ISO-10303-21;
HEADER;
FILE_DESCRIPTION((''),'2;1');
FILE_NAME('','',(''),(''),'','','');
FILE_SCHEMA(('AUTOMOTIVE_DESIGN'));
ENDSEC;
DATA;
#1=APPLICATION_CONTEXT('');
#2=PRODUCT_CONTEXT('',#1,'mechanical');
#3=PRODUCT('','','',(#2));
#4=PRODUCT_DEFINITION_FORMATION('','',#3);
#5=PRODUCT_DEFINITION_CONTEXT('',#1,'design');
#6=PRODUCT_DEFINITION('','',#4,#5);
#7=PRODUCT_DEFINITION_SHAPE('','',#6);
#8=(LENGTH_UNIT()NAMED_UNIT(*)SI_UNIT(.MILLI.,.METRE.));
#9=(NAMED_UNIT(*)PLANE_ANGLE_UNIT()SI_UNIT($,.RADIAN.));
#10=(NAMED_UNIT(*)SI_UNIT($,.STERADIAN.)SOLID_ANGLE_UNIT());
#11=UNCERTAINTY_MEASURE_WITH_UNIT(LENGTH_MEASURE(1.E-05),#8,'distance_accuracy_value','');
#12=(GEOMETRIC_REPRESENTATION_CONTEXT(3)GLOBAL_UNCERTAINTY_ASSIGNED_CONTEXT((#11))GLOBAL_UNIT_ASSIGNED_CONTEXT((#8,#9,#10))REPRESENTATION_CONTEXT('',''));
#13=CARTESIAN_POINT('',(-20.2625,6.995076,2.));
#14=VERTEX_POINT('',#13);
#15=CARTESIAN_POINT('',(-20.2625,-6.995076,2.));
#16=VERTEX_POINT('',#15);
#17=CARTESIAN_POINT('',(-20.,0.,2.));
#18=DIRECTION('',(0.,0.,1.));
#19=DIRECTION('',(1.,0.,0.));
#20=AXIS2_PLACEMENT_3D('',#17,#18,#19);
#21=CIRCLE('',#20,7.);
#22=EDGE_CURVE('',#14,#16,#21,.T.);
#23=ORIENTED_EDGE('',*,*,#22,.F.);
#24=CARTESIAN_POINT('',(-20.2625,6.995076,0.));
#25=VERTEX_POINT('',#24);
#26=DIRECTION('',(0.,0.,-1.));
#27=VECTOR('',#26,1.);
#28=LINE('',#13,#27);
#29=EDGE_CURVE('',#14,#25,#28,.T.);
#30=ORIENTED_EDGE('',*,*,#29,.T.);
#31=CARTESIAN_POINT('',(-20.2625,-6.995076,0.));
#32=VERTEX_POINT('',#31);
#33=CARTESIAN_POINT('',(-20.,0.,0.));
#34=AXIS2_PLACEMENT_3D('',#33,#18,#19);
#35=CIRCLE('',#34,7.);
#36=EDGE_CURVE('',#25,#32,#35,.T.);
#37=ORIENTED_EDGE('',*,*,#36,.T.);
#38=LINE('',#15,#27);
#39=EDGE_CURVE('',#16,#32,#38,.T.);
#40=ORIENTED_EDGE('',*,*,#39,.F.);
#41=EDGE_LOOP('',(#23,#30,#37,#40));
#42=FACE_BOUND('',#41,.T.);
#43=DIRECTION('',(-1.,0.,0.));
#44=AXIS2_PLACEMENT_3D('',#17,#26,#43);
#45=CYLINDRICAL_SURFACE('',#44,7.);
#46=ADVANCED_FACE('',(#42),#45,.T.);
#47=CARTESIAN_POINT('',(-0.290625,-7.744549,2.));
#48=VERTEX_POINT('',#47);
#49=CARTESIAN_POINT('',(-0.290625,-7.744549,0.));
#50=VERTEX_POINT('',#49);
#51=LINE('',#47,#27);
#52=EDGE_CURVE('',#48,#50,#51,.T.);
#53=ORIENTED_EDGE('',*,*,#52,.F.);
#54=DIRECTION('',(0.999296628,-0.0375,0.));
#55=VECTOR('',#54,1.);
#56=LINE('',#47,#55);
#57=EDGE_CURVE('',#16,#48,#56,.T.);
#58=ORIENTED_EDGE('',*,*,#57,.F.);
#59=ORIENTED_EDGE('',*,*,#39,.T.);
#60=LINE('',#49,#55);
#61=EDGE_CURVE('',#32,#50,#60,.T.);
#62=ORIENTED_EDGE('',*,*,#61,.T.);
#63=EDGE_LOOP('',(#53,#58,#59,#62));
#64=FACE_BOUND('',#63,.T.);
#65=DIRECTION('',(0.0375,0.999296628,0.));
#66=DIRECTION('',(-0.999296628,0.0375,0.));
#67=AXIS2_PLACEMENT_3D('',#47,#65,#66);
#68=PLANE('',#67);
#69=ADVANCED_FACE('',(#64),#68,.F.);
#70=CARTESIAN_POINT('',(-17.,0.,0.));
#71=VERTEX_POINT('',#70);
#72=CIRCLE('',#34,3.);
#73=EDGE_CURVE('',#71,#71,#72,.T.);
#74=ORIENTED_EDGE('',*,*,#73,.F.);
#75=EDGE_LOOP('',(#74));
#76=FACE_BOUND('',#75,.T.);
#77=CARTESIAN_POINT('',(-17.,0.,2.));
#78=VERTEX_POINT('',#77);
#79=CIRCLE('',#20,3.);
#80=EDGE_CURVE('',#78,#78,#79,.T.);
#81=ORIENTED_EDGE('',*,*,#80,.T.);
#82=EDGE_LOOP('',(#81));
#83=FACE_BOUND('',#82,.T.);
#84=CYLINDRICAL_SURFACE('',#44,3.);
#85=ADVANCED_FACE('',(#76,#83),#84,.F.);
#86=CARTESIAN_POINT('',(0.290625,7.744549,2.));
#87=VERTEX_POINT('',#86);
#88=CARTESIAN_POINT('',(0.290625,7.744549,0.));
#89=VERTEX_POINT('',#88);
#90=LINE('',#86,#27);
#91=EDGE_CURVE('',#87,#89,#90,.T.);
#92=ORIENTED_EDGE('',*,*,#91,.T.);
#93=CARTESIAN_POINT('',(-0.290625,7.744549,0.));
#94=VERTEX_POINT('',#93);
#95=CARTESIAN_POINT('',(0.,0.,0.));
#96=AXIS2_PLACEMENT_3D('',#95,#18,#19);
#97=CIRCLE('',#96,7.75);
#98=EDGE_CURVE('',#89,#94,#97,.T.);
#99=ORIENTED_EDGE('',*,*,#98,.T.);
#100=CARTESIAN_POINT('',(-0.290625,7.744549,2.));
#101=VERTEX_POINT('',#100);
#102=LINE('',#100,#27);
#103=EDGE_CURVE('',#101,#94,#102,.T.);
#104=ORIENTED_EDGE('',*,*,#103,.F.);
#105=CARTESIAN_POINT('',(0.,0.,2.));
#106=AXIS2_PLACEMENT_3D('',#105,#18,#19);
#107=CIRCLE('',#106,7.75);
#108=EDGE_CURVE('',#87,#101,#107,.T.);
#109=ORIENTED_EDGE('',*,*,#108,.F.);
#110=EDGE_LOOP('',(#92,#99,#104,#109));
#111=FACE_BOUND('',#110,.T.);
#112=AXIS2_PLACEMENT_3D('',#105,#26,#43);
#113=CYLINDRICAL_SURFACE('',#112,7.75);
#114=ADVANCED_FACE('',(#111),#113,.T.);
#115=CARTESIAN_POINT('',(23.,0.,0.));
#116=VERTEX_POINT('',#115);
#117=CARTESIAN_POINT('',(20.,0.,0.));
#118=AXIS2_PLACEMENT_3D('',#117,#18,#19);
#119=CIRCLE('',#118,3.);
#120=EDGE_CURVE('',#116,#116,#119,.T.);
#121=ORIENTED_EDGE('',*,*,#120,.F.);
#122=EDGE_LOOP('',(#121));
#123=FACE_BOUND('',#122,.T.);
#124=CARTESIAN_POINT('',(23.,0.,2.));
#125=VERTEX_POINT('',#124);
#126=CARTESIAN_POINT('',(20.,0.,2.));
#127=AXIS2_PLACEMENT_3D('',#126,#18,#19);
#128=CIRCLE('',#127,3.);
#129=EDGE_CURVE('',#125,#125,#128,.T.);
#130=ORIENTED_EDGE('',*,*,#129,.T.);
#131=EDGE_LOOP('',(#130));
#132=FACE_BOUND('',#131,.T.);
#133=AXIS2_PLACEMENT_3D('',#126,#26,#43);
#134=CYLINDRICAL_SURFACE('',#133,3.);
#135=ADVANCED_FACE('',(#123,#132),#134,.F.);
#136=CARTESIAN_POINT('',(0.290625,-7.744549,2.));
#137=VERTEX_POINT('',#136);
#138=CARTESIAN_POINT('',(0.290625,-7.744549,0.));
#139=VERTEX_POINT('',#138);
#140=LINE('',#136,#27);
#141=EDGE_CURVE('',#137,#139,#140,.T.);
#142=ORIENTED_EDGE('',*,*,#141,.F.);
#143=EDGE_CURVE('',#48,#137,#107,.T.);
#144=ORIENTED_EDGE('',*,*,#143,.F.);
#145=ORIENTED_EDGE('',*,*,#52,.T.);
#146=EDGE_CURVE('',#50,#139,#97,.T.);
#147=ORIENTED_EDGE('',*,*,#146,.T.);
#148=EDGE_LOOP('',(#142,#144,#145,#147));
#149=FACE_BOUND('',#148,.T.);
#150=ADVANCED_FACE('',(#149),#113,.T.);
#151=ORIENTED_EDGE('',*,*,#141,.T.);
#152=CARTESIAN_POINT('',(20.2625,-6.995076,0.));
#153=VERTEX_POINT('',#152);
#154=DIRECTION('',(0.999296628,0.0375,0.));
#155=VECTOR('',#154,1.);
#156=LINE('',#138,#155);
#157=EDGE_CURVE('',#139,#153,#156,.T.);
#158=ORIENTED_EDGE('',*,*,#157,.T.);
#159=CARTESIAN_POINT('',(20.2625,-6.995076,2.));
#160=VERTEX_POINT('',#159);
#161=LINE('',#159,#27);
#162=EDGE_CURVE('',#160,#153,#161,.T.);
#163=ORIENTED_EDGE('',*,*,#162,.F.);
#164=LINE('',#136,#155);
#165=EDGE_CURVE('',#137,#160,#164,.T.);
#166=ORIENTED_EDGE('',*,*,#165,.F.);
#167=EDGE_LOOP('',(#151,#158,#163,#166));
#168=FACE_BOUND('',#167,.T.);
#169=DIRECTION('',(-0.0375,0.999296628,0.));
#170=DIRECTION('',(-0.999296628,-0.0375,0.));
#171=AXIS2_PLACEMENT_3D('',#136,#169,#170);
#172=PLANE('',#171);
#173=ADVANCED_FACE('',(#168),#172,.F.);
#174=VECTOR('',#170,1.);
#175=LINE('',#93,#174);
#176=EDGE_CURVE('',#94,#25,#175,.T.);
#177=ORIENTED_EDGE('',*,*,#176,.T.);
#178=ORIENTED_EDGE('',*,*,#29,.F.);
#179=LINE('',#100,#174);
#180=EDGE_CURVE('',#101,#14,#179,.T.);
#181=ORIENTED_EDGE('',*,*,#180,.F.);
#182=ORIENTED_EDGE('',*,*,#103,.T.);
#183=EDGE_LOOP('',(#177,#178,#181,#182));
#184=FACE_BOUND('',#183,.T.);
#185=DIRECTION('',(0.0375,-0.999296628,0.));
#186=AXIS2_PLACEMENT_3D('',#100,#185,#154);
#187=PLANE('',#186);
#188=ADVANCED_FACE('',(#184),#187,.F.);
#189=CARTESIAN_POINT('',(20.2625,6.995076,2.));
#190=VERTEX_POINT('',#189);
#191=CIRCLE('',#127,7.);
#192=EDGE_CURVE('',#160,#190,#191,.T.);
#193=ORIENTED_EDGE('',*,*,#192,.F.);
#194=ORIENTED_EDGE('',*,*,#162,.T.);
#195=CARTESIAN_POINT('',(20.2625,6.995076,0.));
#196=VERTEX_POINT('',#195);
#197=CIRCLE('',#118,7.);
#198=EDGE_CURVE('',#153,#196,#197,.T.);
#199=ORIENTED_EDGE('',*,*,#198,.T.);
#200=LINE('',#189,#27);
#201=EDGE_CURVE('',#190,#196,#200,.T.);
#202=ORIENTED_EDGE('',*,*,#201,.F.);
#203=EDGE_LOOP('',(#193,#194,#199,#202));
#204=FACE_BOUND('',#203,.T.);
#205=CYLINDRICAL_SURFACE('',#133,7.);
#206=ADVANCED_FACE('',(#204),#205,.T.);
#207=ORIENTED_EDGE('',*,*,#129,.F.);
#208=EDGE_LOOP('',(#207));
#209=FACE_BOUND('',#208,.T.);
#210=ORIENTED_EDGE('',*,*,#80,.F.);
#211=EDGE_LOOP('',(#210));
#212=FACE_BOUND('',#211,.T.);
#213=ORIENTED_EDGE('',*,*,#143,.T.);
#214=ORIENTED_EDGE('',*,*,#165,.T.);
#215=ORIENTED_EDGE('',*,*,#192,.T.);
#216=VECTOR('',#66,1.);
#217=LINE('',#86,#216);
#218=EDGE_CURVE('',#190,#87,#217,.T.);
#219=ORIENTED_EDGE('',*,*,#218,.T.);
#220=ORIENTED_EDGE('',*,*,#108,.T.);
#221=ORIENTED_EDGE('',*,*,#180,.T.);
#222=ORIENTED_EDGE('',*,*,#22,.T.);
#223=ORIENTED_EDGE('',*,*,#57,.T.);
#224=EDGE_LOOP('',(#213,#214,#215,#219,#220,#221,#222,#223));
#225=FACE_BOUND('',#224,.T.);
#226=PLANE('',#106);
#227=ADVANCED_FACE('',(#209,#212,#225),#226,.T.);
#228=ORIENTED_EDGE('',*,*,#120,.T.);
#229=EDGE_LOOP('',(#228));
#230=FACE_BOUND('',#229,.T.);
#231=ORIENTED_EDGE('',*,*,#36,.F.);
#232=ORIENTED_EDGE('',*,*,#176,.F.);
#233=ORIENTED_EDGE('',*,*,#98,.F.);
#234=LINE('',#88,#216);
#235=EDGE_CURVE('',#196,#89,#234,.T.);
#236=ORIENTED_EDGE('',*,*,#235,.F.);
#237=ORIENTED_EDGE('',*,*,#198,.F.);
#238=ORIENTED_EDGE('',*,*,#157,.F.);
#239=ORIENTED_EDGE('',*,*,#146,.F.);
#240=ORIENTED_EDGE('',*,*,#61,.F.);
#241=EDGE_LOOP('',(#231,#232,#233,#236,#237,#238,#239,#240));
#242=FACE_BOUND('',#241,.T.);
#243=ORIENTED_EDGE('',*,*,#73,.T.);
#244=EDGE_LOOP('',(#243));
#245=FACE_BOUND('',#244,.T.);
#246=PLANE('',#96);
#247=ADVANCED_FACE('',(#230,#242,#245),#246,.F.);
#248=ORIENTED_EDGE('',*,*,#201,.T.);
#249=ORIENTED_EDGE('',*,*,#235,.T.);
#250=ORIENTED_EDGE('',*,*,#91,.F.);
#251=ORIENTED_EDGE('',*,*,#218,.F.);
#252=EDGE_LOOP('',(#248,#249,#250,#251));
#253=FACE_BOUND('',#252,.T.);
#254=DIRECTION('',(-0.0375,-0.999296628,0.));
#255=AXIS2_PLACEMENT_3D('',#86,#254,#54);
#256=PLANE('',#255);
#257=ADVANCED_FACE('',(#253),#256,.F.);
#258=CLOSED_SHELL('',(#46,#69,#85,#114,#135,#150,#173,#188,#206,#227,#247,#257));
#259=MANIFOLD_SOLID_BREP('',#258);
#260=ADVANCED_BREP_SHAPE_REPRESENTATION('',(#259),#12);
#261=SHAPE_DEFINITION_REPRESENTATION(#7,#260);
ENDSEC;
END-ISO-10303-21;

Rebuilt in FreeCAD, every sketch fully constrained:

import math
import FreeCAD as App
import Part
import Sketcher
from FreeCAD import Vector

doc = App.newDocument("Part")
body = doc.addObject("PartDesign::Body", "Body")

# Sketch on XY plane
sketch1 = body.newObject("Sketcher::SketchObject", "Sketch")
sketch1.AttachmentSupport = (doc.getObject("XY_Plane"), [""])
sketch1.MapMode = "FlatFace"
sketch1.addGeometry(Part.LineSegment(Vector(-0.3, 7.7, 0), Vector(-20.3, 7, 0)), False)
sketch1.addGeometry(Part.ArcOfCircle(Part.Circle(Vector(-20, 0, 0), Vector(0, 0, 1), 7), math.radians(92), math.radians(268)), False)
sketch1.addGeometry(Part.LineSegment(Vector(-20.3, -7, 0), Vector(-0.3, -7.7, 0)), False)
sketch1.addGeometry(Part.ArcOfCircle(Part.Circle(Vector(0, 0, 0), Vector(0, 0, 1), 7.7), math.radians(-92.15), math.radians(-87.85)), False)
sketch1.addGeometry(Part.LineSegment(Vector(0.3, -7.7, 0), Vector(20.3, -7, 0)), False)
sketch1.addGeometry(Part.ArcOfCircle(Part.Circle(Vector(20, 0, 0), Vector(0, 0, 1), 7), math.radians(-88), math.radians(88)), False)
sketch1.addGeometry(Part.LineSegment(Vector(20.3, 7, 0), Vector(0.3, 7.7, 0)), False)
sketch1.addGeometry(Part.ArcOfCircle(Part.Circle(Vector(0, 0, 0), Vector(0, 0, 1), 7.7), math.radians(87.85), math.radians(92.15)), False)
sketch1.addGeometry(Part.Circle(Vector(-20, 0, 0), Vector(0, 0, 1), 3), False)
sketch1.addGeometry(Part.Circle(Vector(20, 0, 0), Vector(0, 0, 1), 3), False)
sketch1.addConstraint(Sketcher.Constraint("Tangent", 0, 2, 1, 1))
sketch1.addConstraint(Sketcher.Constraint("Tangent", 1, 2, 2, 1))
sketch1.addConstraint(Sketcher.Constraint("Tangent", 2, 2, 3, 1))
sketch1.addConstraint(Sketcher.Constraint("Tangent", 3, 2, 4, 1))
sketch1.addConstraint(Sketcher.Constraint("Tangent", 4, 2, 5, 1))
sketch1.addConstraint(Sketcher.Constraint("Tangent", 5, 2, 6, 1))
sketch1.addConstraint(Sketcher.Constraint("Tangent", 6, 2, 7, 1))
sketch1.addConstraint(Sketcher.Constraint("Tangent", 7, 2, 0, 1))
sketch1.addConstraint(Sketcher.Constraint("Coincident", 3, 3, -1, 1))
sketch1.addConstraint(Sketcher.Constraint("Coincident", 7, 3, -1, 1))
sketch1.addConstraint(Sketcher.Constraint("Coincident", 8, 3, 1, 3))
sketch1.addConstraint(Sketcher.Constraint("Coincident", 9, 3, 5, 3))
sketch1.addConstraint(Sketcher.Constraint("Equal", 1, 5))
sketch1.addConstraint(Sketcher.Constraint("Equal", 3, 7))
sketch1.addConstraint(Sketcher.Constraint("Equal", 8, 9))
sketch1.addConstraint(Sketcher.Constraint("Symmetric", 1, 3, 5, 3, -1, 1))
sketch1.addConstraint(Sketcher.Constraint("PointOnObject", 1, 3, -1))
sketch1.addConstraint(Sketcher.Constraint("Diameter", 8, 6.0))
sketch1.addConstraint(Sketcher.Constraint("Radius", 1, 7.0))
sketch1.addConstraint(Sketcher.Constraint("Radius", 3, 7.75))
sketch1.addConstraint(Sketcher.Constraint("DistanceX", 1, 3, -1, 1, 20.0))
pad1 = body.newObject("PartDesign::Pad", "Pad")
pad1.Profile = sketch1
pad1.Length = 2

doc.recompute()
